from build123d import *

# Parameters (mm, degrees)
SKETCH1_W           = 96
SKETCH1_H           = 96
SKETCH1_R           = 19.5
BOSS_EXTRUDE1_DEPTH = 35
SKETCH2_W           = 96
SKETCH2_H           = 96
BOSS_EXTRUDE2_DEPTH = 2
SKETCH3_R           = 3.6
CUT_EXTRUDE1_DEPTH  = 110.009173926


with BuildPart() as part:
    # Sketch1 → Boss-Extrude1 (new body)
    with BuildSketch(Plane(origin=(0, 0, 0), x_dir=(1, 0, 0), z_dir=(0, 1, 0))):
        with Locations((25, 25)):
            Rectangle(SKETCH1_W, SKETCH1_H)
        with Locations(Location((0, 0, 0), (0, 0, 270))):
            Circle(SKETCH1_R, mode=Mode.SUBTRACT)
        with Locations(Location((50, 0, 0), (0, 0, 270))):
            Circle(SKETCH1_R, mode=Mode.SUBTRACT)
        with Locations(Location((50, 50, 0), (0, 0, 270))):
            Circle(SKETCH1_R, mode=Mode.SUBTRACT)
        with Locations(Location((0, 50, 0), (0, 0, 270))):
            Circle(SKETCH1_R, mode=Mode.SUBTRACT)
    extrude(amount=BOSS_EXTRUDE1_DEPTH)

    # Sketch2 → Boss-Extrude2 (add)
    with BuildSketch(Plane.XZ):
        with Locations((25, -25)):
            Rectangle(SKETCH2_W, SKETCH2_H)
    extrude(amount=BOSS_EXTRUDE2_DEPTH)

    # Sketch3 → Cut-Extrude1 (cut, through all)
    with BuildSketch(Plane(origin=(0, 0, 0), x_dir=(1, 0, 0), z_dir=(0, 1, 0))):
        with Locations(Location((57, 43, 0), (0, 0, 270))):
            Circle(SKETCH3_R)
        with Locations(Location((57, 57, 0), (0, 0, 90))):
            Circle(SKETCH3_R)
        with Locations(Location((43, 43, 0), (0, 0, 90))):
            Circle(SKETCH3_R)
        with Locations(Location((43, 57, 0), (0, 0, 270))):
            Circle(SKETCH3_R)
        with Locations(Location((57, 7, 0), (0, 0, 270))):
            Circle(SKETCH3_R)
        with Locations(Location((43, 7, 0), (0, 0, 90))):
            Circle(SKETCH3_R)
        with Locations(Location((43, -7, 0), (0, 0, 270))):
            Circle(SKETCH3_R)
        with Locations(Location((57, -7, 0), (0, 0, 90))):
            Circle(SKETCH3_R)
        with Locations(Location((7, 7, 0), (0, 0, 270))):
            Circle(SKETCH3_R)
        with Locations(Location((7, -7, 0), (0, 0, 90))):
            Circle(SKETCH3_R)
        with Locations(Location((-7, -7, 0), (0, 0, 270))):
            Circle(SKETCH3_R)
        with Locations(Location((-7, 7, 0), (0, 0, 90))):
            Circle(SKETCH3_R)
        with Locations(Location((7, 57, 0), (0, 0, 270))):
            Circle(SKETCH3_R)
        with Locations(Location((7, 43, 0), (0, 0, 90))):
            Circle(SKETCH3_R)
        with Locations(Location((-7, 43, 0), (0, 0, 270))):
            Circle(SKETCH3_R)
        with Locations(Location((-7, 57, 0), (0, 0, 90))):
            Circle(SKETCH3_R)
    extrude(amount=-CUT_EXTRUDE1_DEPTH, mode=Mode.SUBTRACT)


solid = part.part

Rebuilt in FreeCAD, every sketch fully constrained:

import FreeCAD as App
import Part
import Sketcher

V = App.Vector

doc = App.newDocument("Part")
params = doc.addObject("Spreadsheet::Sheet", "Params")
for row, (alias, value) in enumerate([
    ("sketch1_diameter", "39 mm"),
    ("sketch1_width", "96 mm"),
    ("pad1_length", "35 mm"),
    ("sketch2_width", "96 mm"),
    ("pad2_length", "2 mm"),
    ("sketch3_diameter", "7.2 mm"),
], start=1):
    params.set(f"A{row}", alias)
    params.set(f"B{row}", "=" + value)
    params.setAlias(f"B{row}", alias)

body = doc.addObject("PartDesign::Body", "Body")

sketch1 = body.newObject("Sketcher::SketchObject", "Sketch")
sketch1.AttachmentSupport = (doc.getObject("XZ_Plane"), [""])
sketch1.MapMode = "FlatFace"
sketch1.addGeometry(Part.LineSegment(V(-23, -73, 0), V(-23, 23, 0)), False)
sketch1.addGeometry(Part.LineSegment(V(-23, 23, 0), V(73, 23, 0)), False)
sketch1.addGeometry(Part.LineSegment(V(73, 23, 0), V(73, -73, 0)), False)
sketch1.addGeometry(Part.LineSegment(V(73, -73, 0), V(-23, -73, 0)), False)
sketch1.addGeometry(Part.Circle(V(0, 0, 0), V(0, 0, 1), 20), False)
sketch1.addGeometry(Part.Circle(V(50, 0, 0), V(0, 0, 1), 20), False)
sketch1.addGeometry(Part.Circle(V(0, -50, 0), V(0, 0, 1), 20), False)
sketch1.addGeometry(Part.Circle(V(50, -50, 0), V(0, 0, 1), 20), False)
sketch1.addConstraint(Sketcher.Constraint("Coincident", 0, 2, 1, 1))
sketch1.addConstraint(Sketcher.Constraint("Coincident", 1, 2, 2, 1))
sketch1.addConstraint(Sketcher.Constraint("Coincident", 2, 2, 3, 1))
sketch1.addConstraint(Sketcher.Constraint("Coincident", 3, 2, 0, 1))
sketch1.addConstraint(Sketcher.Constraint("Vertical", 0))
sketch1.addConstraint(Sketcher.Constraint("Horizontal", 1))
sketch1.addConstraint(Sketcher.Constraint("Vertical", 2))
sketch1.addConstraint(Sketcher.Constraint("Horizontal", 3))
sketch1.addConstraint(Sketcher.Constraint("Coincident", 4, 3, -1, 1))
sketch1.addConstraint(Sketcher.Constraint("Equal", 4, 5))
sketch1.addConstraint(Sketcher.Constraint("Equal", 5, 6))
sketch1.addConstraint(Sketcher.Constraint("Equal", 6, 7))
sketch1.addConstraint(Sketcher.Constraint("PointOnObject", 5, 3, -1))
sketch1.addConstraint(Sketcher.Constraint("PointOnObject", 6, 3, -2))
sketch1.addConstraint(Sketcher.Constraint("Horizontal", 6, 3, 7, 3))
sketch1.addConstraint(Sketcher.Constraint("Vertical", 5, 3, 7, 3))
sketch1.addConstraint(Sketcher.Constraint("Equal", 3, 0))
sketch1.addConstraint(Sketcher.Constraint("Diameter", 4, 39.0))
sketch1.addConstraint(Sketcher.Constraint("DistanceX", 1, 1, 1, 2, 96.0))
sketch1.addConstraint(Sketcher.Constraint("DistanceX", -1, 1, 5, 3, 50.0))
sketch1.addConstraint(Sketcher.Constraint("DistanceY", 6, 3, -1, 1, 50.0))
sketch1.addConstraint(Sketcher.Constraint("DistanceX", 0, 2, -1, 1, 23.0))
sketch1.addConstraint(Sketcher.Constraint("DistanceY", -1, 1, 0, 2, 23.0))
sketch1.setExpression("Constraints[17]", "Params.sketch1_diameter")
sketch1.setExpression("Constraints[18]", "Params.sketch1_width")
pad1 = body.newObject("PartDesign::Pad", "Pad")
pad1.Profile = sketch1
pad1.setExpression("Length", "Params.pad1_length")
pad1.Reversed = True

sketch2 = body.newObject("Sketcher::SketchObject", "Sketch001")
sketch2.AttachmentSupport = (doc.getObject("XZ_Plane"), [""])
sketch2.MapMode = "FlatFace"
sketch2.addGeometry(Part.LineSegment(V(-23, 23, 0), V(-23, -73, 0)), False)
sketch2.addGeometry(Part.LineSegment(V(-23, -73, 0), V(73, -73, 0)), False)
sketch2.addGeometry(Part.LineSegment(V(73, -73, 0), V(73, 23, 0)), False)
sketch2.addGeometry(Part.LineSegment(V(73, 23, 0), V(-23, 23, 0)), False)
sketch2.addConstraint(Sketcher.Constraint("Coincident", 0, 2, 1, 1))
sketch2.addConstraint(Sketcher.Constraint("Coincident", 1, 2, 2, 1))
sketch2.addConstraint(Sketcher.Constraint("Coincident", 2, 2, 3, 1))
sketch2.addConstraint(Sketcher.Constraint("Coincident", 3, 2, 0, 1))
sketch2.addConstraint(Sketcher.Constraint("Vertical", 0))
sketch2.addConstraint(Sketcher.Constraint("Horizontal", 1))
sketch2.addConstraint(Sketcher.Constraint("Vertical", 2))
sketch2.addConstraint(Sketcher.Constraint("Horizontal", 3))
sketch2.addConstraint(Sketcher.Constraint("Equal", 3, 0))
sketch2.addConstraint(Sketcher.Constraint("DistanceX", 1, 1, 1, 2, 96.0))
sketch2.addConstraint(Sketcher.Constraint("DistanceX", 0, 2, -1, 1, 23.0))
sketch2.addConstraint(Sketcher.Constraint("DistanceY", 0, 2, -1, 1, 73.0))
sketch2.setExpression("Constraints[9]", "Params.sketch2_width")
pad2 = body.newObject("PartDesign::Pad", "Pad001")
pad2.Profile = sketch2
pad2.setExpression("Length", "Params.pad2_length")

sketch3 = body.newObject("Sketcher::SketchObject", "Sketch002")
sketch3.AttachmentSupport = (doc.getObject("XZ_Plane"), [""])
sketch3.MapMode = "FlatFace"
sketch3.addGeometry(Part.Circle(V(57, -43, 0), V(0, 0, 1), 3.6), False)
sketch3.addGeometry(Part.Circle(V(57, -57, 0), V(0, 0, 1), 3.6), False)
sketch3.addGeometry(Part.Circle(V(43, -43, 0), V(0, 0, 1), 3.6), False)
sketch3.addGeometry(Part.Circle(V(43, -57, 0), V(0, 0, 1), 3.6), False)
sketch3.addGeometry(Part.Circle(V(57, -7, 0), V(0, 0, 1), 3.6), False)
sketch3.addGeometry(Part.Circle(V(43, -7, 0), V(0, 0, 1), 3.6), False)
sketch3.addGeometry(Part.Circle(V(43, 7, 0), V(0, 0, 1), 3.6), False)
sketch3.addGeometry(Part.Circle(V(57, 7, 0), V(0, 0, 1), 3.6), False)
sketch3.addGeometry(Part.Circle(V(7, -7, 0), V(0, 0, 1), 3.6), False)
sketch3.addGeometry(Part.Circle(V(7, 7, 0), V(0, 0, 1), 3.6), False)
sketch3.addGeometry(Part.Circle(V(-7, 7, 0), V(0, 0, 1), 3.6), False)
sketch3.addGeometry(Part.Circle(V(-7, -7, 0), V(0, 0, 1), 3.6), False)
sketch3.addGeometry(Part.Circle(V(7, -57, 0), V(0, 0, 1), 3.6), False)
sketch3.addGeometry(Part.Circle(V(7, -43, 0), V(0, 0, 1), 3.6), False)
sketch3.addGeometry(Part.Circle(V(-7, -43, 0), V(0, 0, 1), 3.6), False)
sketch3.addGeometry(Part.Circle(V(-7, -57, 0), V(0, 0, 1), 3.6), False)
sketch3.addConstraint(Sketcher.Constraint("Equal", 0, 1))
sketch3.addConstraint(Sketcher.Constraint("Equal", 1, 2))
sketch3.addConstraint(Sketcher.Constraint("Equal", 2, 3))
sketch3.addConstraint(Sketcher.Constraint("Equal", 3, 4))
sketch3.addConstraint(Sketcher.Constraint("Equal", 4, 5))
sketch3.addConstraint(Sketcher.Constraint("Equal", 5, 6))
sketch3.addConstraint(Sketcher.Constraint("Equal", 6, 7))
sketch3.addConstraint(Sketcher.Constraint("Equal", 7, 8))
sketch3.addConstraint(Sketcher.Constraint("Equal", 8, 9))
sketch3.addConstraint(Sketcher.Constraint("Equal", 9, 10))
sketch3.addConstraint(Sketcher.Constraint("Equal", 10, 11))
sketch3.addConstraint(Sketcher.Constraint("Equal", 11, 12))
sketch3.addConstraint(Sketcher.Constraint("Equal", 12, 13))
sketch3.addConstraint(Sketcher.Constraint("Equal", 13, 14))
sketch3.addConstraint(Sketcher.Constraint("Equal", 14, 15))
sketch3.addConstraint(Sketcher.Constraint("Symmetric", 8, 3, 10, 3, -1, 1))
sketch3.addConstraint(Sketcher.Constraint("Symmetric", 9, 3, 11, 3, -1, 1))
sketch3.addConstraint(Sketcher.Constraint("Symmetric", 9, 3, 10, 3, -2))
sketch3.addConstraint(Sketcher.Constraint("Symmetric", 13, 3, 14, 3, -2))
sketch3.addConstraint(Sketcher.Constraint("Symmetric", 12, 3, 15, 3, -2))
sketch3.addConstraint(Sketcher.Constraint("Symmetric", 5, 3, 6, 3, -1))
sketch3.addConstraint(Sketcher.Constraint("Symmetric", 4, 3, 7, 3, -1))
sketch3.addConstraint(Sketcher.Constraint("Horizontal", 0, 3, 2, 3))
sketch3.addConstraint(Sketcher.Constraint("Horizontal", 1, 3, 3, 3))
sketch3.addConstraint(Sketcher.Constraint("Horizontal", 4, 3, 5, 3))
sketch3.addConstraint(Sketcher.Constraint("Horizontal", 5, 3, 8, 3))
sketch3.addConstraint(Sketcher.Constraint("Horizontal", 3, 3, 12, 3))
sketch3.addConstraint(Sketcher.Constraint("Horizontal", 2, 3, 13, 3))
sketch3.addConstraint(Sketcher.Constraint("Vertical", 0, 3, 1, 3))
sketch3.addConstraint(Sketcher.Constraint("Vertical", 2, 3, 3, 3))
sketch3.addConstraint(Sketcher.Constraint("Vertical", 1, 3, 4, 3))
sketch3.addConstraint(Sketcher.Constraint("Vertical", 3, 3, 5, 3))
sketch3.addConstraint(Sketcher.Constraint("Vertical", 9, 3, 12, 3))
sketch3.addConstraint(Sketcher.Constraint("Vertical", 12, 3, 13, 3))
sketch3.addConstraint(Sketcher.Constraint("Diameter", 0, 7.2))
sketch3.addConstraint(Sketcher.Constraint("DistanceX", -1, 1, 0, 3, 57.0))
sketch3.addConstraint(Sketcher.Constraint("DistanceY", 0, 3, -1, 1, 43.0))
sketch3.addConstraint(Sketcher.Constraint("DistanceY", 1, 3, -1, 1, 57.0))
sketch3.addConstraint(Sketcher.Constraint("DistanceX", -1, 1, 2, 3, 43.0))
sketch3.addConstraint(Sketcher.Constraint("DistanceY", 4, 3, -1, 1, 7.0))
sketch3.addConstraint(Sketcher.Constraint("DistanceX", -1, 1, 8, 3, 7.0))
sketch3.setExpression("Constraints[34]", "Params.sketch3_diameter")
pocket1 = body.newObject("PartDesign::Pocket", "Pocket")
pocket1.Profile = sketch3
pocket1.Type = "ThroughAll"
pocket1.Reversed = True

doc.recompute()
